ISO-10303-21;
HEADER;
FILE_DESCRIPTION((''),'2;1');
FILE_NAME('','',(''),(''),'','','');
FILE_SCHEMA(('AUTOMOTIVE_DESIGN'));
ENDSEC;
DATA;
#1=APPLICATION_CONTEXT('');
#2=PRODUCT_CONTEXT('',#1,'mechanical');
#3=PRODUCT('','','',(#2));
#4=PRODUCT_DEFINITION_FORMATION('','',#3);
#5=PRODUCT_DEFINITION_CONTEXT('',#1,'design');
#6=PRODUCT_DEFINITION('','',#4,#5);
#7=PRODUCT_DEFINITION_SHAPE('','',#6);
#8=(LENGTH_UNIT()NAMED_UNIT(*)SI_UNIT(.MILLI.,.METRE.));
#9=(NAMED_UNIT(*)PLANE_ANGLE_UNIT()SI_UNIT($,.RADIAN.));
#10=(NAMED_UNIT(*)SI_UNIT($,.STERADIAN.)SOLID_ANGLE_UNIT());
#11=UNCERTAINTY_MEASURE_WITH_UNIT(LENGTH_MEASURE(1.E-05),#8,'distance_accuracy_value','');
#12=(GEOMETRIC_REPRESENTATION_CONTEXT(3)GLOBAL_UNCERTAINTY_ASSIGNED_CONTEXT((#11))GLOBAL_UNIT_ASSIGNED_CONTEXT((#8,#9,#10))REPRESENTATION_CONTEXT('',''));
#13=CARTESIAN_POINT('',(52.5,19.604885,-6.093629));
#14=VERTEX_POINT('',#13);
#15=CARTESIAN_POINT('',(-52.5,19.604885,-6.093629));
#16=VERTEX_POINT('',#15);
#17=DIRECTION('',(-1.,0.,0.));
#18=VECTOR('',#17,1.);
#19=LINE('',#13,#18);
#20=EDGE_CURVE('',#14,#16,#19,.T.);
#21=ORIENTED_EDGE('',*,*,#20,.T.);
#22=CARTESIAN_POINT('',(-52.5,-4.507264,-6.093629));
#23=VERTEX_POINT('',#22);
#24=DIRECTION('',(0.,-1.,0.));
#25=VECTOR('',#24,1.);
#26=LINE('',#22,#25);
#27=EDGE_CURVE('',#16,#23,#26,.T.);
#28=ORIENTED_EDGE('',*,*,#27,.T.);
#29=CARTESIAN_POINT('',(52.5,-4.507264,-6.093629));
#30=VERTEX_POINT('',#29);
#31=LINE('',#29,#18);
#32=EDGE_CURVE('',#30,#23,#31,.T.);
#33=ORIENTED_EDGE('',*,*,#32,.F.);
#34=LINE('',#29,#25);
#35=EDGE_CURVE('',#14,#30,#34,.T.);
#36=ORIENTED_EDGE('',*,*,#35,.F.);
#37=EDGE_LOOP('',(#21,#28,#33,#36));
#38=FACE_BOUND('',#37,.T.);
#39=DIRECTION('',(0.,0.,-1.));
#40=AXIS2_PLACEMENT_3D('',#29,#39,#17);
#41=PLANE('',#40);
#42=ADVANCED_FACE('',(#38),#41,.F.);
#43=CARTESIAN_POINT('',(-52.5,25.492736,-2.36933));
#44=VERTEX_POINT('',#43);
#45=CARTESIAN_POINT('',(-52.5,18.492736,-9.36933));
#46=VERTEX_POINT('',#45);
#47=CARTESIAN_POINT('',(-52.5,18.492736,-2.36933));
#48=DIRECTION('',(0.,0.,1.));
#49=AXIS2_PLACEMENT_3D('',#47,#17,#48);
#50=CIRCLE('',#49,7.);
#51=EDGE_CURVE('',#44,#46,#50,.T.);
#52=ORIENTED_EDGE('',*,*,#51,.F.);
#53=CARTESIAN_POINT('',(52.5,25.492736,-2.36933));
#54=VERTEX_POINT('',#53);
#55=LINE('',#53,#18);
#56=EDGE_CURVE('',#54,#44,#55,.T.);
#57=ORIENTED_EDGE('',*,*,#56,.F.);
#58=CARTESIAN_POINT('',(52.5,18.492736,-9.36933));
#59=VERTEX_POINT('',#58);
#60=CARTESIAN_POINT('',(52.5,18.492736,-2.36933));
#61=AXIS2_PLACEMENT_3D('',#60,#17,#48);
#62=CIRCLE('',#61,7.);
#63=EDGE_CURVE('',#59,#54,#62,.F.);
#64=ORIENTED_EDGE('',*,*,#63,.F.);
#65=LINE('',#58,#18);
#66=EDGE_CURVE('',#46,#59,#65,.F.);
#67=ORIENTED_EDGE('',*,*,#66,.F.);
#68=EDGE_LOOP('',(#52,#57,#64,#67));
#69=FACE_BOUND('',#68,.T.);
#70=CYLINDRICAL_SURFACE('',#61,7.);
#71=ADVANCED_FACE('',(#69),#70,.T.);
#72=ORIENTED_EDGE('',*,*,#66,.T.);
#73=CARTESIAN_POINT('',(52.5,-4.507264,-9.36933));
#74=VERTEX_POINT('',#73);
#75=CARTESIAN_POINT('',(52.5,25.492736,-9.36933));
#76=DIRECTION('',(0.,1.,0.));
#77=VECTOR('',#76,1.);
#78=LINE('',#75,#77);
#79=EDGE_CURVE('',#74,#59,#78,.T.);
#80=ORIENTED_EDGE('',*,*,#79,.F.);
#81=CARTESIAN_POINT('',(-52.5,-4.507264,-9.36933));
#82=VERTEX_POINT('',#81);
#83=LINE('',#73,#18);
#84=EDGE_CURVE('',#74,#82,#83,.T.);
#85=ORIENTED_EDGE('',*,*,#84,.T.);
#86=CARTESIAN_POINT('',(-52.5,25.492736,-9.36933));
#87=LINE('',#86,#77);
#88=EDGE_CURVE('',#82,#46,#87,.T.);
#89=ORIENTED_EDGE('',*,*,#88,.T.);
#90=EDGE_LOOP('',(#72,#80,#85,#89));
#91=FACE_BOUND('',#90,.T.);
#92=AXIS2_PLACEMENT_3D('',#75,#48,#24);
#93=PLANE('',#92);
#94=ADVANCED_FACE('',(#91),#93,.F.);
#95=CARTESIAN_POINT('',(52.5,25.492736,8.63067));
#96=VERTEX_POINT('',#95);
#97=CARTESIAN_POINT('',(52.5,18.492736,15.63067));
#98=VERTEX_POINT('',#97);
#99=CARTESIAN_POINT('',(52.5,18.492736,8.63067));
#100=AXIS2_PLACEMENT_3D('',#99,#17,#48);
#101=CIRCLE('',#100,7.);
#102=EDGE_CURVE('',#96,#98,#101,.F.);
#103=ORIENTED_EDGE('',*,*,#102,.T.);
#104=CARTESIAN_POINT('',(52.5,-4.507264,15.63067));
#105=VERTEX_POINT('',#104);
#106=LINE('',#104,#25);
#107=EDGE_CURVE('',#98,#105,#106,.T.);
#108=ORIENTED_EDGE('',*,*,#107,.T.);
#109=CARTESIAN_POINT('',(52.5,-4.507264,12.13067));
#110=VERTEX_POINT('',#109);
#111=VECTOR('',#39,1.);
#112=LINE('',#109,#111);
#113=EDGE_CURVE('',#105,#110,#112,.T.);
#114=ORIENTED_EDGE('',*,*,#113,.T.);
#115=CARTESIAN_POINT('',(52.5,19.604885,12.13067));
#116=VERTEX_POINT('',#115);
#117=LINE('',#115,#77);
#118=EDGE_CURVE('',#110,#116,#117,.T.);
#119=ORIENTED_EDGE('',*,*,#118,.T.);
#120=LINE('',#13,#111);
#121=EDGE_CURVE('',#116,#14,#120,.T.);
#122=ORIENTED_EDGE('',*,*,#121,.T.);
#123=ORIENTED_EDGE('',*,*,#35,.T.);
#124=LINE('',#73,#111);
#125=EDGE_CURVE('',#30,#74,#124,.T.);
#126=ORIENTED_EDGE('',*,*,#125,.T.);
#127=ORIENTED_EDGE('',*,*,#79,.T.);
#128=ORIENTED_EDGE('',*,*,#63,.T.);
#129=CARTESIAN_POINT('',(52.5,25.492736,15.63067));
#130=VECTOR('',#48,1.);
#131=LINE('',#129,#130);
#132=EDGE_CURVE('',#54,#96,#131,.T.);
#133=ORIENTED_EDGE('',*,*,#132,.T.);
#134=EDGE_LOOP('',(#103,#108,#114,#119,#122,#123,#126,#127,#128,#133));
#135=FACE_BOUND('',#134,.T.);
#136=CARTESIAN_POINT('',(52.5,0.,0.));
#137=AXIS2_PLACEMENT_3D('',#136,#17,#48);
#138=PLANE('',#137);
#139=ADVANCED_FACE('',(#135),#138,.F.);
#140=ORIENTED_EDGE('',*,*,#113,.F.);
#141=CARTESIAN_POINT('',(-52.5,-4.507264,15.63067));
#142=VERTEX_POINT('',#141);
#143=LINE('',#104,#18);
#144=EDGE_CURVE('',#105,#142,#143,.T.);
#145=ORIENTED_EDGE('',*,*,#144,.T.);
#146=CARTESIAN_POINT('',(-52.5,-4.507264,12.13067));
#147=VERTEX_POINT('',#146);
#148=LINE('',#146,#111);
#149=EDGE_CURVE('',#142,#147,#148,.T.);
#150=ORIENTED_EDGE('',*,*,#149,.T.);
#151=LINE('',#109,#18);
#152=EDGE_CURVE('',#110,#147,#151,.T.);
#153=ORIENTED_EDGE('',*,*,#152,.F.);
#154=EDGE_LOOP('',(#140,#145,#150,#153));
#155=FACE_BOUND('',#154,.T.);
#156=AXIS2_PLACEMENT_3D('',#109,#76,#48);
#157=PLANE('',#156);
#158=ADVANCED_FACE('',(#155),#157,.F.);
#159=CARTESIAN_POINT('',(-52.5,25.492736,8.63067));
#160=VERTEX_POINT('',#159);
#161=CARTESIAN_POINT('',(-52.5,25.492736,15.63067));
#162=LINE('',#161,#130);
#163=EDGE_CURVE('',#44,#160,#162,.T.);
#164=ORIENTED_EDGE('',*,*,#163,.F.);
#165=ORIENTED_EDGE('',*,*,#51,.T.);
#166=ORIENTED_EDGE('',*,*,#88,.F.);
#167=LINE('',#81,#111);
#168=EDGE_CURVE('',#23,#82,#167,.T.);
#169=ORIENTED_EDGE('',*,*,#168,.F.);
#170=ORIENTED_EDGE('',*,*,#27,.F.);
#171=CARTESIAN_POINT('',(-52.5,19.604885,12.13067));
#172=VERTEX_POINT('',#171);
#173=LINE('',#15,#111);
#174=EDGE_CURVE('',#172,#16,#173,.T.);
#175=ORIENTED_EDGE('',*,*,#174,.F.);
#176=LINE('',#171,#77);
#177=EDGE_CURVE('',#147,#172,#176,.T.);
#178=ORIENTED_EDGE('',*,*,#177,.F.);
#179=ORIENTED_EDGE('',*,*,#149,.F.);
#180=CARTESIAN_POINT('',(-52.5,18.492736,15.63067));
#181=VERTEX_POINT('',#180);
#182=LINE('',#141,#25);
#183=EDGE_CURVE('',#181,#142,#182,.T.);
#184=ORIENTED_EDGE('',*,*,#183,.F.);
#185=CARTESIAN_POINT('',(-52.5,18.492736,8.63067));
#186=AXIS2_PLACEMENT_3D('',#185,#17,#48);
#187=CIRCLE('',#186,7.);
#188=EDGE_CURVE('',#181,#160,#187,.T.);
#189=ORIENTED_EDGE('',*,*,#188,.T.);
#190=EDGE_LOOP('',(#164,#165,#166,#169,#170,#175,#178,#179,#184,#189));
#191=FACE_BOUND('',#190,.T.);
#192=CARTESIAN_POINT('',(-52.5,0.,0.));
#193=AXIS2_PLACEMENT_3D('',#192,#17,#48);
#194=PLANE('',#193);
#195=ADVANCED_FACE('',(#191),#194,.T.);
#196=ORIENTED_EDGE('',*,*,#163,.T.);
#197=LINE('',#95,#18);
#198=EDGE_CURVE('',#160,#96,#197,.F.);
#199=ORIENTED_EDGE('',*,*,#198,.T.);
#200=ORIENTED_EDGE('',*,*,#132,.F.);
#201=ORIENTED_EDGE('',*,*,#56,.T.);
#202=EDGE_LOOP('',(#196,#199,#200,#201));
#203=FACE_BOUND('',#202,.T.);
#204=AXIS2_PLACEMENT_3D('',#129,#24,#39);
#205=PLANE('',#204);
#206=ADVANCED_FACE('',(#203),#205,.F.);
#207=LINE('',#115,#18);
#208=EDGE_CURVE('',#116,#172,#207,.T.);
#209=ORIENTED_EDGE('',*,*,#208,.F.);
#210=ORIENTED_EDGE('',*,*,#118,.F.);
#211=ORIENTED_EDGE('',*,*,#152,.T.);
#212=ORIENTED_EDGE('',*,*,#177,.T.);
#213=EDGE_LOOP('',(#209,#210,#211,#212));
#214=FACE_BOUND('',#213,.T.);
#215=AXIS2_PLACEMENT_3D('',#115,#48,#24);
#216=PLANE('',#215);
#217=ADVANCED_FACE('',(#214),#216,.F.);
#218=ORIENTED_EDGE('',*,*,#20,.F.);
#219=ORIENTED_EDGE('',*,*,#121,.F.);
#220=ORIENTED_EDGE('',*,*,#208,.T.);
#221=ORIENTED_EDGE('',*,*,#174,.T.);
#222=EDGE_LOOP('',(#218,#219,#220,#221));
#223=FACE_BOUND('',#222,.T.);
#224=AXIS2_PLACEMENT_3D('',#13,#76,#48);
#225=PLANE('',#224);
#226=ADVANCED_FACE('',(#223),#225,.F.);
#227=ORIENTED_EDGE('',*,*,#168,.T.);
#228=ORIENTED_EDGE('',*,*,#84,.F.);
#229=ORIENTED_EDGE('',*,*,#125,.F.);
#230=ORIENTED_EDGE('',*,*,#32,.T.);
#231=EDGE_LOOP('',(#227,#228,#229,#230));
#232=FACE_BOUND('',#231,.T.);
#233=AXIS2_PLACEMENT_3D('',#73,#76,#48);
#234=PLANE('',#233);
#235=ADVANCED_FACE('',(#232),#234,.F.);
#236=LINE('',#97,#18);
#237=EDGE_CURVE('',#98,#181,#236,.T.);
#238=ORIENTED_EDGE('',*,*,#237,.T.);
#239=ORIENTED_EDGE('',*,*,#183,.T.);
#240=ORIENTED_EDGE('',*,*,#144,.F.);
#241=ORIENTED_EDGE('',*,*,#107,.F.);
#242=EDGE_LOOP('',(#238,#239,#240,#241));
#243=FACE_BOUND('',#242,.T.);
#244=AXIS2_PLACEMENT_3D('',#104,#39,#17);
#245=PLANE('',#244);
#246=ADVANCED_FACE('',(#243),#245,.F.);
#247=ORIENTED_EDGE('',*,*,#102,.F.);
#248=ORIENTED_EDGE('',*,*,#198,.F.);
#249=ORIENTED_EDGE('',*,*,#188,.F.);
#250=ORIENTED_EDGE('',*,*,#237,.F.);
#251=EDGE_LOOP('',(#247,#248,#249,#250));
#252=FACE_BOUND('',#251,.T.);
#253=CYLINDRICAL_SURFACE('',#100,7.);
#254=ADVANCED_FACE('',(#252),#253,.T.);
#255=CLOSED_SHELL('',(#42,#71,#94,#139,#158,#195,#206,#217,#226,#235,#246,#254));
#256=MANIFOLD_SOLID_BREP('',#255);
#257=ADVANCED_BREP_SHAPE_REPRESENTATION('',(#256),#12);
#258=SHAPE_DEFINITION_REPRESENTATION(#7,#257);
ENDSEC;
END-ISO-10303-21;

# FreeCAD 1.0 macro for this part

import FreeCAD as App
import Part
import Sketcher


def edges_at(feature, points):
    """Names of the edges that pass closest to the given points."""
    edges = feature.Shape.Edges
    near = lambda p: min(range(len(edges)), key=lambda i: edges[i].distToShape(Part.Vertex(*p))[0])
    return sorted({f"Edge{near(p) + 1}" for p in points})

doc = App.newDocument("Part")
body = doc.addObject("PartDesign::Body", "Body")

# Sketch on YZ plane
sketch1 = body.newObject("Sketcher::SketchObject", "Sketch")
sketch1.AttachmentSupport = (doc.getObject("YZ_Plane"), [""])
sketch1.MapMode = "FlatFace"
sketch1.addGeometry([
    Part.LineSegment(App.Vector(25.5, 15.6, 0), App.Vector(-4.5, 15.6, 0)),  # 0
    Part.LineSegment(App.Vector(-4.5, 15.6, 0), App.Vector(-4.5, 12.1, 0)),  # 1
    Part.LineSegment(App.Vector(-4.5, 12.1, 0), App.Vector(19.6, 12.1, 0)),  # 2
    Part.LineSegment(App.Vector(19.6, 12.1, 0), App.Vector(19.6, -6.1, 0)),  # 3
    Part.LineSegment(App.Vector(19.6, -6.1, 0), App.Vector(-4.5, -6.1, 0)),  # 4
    Part.LineSegment(App.Vector(-4.5, -6.1, 0), App.Vector(-4.5, -9.4, 0)),  # 5
    Part.LineSegment(App.Vector(-4.5, -9.4, 0), App.Vector(25.5, -9.4, 0)),  # 6
    Part.LineSegment(App.Vector(25.5, -9.4, 0), App.Vector(25.5, 15.6, 0)),  # 7
], False)
sketch1.addConstraint([
    Sketcher.Constraint("Coincident", 0, 2, 1, 1),
    Sketcher.Constraint("Coincident", 1, 2, 2, 1),
    Sketcher.Constraint("Coincident", 2, 2, 3, 1),
    Sketcher.Constraint("Coincident", 3, 2, 4, 1),
    Sketcher.Constraint("Coincident", 4, 2, 5, 1),
    Sketcher.Constraint("Coincident", 5, 2, 6, 1),
    Sketcher.Constraint("Coincident", 6, 2, 7, 1),
    Sketcher.Constraint("Coincident", 7, 2, 0, 1),
    Sketcher.Constraint("Horizontal", 0),
    Sketcher.Constraint("Vertical", 1),
    Sketcher.Constraint("Horizontal", 2),
    Sketcher.Constraint("Vertical", 3),
    Sketcher.Constraint("Horizontal", 4),
    Sketcher.Constraint("Vertical", 5),
    Sketcher.Constraint("Horizontal", 6),
    Sketcher.Constraint("Vertical", 7),
    Sketcher.Constraint("Vertical", 1, 2, 4, 2),
    Sketcher.Constraint("DistanceX", 0, 2, 0, 1, 30.0),
    Sketcher.Constraint("DistanceY", 7, 1, 7, 2, 25.0),
    Sketcher.Constraint("DistanceY", 1, 2, 1, 1, 3.5),
    Sketcher.Constraint("DistanceY", 3, 2, 3, 1, 18.224299),
    Sketcher.Constraint("DistanceX", 2, 1, 2, 2, 24.11215),
    Sketcher.Constraint("DistanceY", -1, 1, 0, 2, 15.63067),
    Sketcher.Constraint("DistanceX", 0, 2, -1, 1, 4.507264),
])
pad1 = body.newObject("PartDesign::Pad", "Pad")
pad1.Profile = sketch1
pad1.Length = 105
pad1.Midplane = True
doc.recompute()

fillet = body.newObject("PartDesign::Fillet", "Fillet")
fillet.Base = (pad1, edges_at(pad1, [(0, 25.493, 15.631), (0, 25.493, -9.369)]))
fillet.Radius = 7

doc.recompute()
